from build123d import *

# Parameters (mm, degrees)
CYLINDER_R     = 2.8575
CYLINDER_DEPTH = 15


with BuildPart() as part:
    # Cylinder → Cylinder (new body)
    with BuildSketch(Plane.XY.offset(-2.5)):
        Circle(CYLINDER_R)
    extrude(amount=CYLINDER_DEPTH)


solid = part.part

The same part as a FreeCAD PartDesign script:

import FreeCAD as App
import Part
import Sketcher

V = App.Vector
Q = App.Units.Quantity

doc = App.newDocument("Part")
body = doc.addObject("PartDesign::Body", "Body")

sketch1 = doc.addObject("Sketcher::SketchObject", "Sketch")
body.addObject(sketch1)
sketch1.AttachmentSupport = (doc.XY_Plane, [""])
sketch1.MapMode = "FlatFace"
sketch1.AttachmentOffset = App.Placement(V(0, 0, -2.5), App.Rotation())
sketch1.addGeometry(Part.Circle(V(0, 0, 0), V(0, 0, 1), 2.9), False)
sketch1.addConstraint([
    Sketcher.Constraint("Coincident", 0, 3, -1, 1),
    Sketcher.Constraint("Diameter", 0, Q("5.715 mm")),
])
pad1 = doc.addObject("PartDesign::Pad", "Pad")
body.addObject(pad1)
pad1.Profile = sketch1
pad1.Length = 15

doc.recompute()
